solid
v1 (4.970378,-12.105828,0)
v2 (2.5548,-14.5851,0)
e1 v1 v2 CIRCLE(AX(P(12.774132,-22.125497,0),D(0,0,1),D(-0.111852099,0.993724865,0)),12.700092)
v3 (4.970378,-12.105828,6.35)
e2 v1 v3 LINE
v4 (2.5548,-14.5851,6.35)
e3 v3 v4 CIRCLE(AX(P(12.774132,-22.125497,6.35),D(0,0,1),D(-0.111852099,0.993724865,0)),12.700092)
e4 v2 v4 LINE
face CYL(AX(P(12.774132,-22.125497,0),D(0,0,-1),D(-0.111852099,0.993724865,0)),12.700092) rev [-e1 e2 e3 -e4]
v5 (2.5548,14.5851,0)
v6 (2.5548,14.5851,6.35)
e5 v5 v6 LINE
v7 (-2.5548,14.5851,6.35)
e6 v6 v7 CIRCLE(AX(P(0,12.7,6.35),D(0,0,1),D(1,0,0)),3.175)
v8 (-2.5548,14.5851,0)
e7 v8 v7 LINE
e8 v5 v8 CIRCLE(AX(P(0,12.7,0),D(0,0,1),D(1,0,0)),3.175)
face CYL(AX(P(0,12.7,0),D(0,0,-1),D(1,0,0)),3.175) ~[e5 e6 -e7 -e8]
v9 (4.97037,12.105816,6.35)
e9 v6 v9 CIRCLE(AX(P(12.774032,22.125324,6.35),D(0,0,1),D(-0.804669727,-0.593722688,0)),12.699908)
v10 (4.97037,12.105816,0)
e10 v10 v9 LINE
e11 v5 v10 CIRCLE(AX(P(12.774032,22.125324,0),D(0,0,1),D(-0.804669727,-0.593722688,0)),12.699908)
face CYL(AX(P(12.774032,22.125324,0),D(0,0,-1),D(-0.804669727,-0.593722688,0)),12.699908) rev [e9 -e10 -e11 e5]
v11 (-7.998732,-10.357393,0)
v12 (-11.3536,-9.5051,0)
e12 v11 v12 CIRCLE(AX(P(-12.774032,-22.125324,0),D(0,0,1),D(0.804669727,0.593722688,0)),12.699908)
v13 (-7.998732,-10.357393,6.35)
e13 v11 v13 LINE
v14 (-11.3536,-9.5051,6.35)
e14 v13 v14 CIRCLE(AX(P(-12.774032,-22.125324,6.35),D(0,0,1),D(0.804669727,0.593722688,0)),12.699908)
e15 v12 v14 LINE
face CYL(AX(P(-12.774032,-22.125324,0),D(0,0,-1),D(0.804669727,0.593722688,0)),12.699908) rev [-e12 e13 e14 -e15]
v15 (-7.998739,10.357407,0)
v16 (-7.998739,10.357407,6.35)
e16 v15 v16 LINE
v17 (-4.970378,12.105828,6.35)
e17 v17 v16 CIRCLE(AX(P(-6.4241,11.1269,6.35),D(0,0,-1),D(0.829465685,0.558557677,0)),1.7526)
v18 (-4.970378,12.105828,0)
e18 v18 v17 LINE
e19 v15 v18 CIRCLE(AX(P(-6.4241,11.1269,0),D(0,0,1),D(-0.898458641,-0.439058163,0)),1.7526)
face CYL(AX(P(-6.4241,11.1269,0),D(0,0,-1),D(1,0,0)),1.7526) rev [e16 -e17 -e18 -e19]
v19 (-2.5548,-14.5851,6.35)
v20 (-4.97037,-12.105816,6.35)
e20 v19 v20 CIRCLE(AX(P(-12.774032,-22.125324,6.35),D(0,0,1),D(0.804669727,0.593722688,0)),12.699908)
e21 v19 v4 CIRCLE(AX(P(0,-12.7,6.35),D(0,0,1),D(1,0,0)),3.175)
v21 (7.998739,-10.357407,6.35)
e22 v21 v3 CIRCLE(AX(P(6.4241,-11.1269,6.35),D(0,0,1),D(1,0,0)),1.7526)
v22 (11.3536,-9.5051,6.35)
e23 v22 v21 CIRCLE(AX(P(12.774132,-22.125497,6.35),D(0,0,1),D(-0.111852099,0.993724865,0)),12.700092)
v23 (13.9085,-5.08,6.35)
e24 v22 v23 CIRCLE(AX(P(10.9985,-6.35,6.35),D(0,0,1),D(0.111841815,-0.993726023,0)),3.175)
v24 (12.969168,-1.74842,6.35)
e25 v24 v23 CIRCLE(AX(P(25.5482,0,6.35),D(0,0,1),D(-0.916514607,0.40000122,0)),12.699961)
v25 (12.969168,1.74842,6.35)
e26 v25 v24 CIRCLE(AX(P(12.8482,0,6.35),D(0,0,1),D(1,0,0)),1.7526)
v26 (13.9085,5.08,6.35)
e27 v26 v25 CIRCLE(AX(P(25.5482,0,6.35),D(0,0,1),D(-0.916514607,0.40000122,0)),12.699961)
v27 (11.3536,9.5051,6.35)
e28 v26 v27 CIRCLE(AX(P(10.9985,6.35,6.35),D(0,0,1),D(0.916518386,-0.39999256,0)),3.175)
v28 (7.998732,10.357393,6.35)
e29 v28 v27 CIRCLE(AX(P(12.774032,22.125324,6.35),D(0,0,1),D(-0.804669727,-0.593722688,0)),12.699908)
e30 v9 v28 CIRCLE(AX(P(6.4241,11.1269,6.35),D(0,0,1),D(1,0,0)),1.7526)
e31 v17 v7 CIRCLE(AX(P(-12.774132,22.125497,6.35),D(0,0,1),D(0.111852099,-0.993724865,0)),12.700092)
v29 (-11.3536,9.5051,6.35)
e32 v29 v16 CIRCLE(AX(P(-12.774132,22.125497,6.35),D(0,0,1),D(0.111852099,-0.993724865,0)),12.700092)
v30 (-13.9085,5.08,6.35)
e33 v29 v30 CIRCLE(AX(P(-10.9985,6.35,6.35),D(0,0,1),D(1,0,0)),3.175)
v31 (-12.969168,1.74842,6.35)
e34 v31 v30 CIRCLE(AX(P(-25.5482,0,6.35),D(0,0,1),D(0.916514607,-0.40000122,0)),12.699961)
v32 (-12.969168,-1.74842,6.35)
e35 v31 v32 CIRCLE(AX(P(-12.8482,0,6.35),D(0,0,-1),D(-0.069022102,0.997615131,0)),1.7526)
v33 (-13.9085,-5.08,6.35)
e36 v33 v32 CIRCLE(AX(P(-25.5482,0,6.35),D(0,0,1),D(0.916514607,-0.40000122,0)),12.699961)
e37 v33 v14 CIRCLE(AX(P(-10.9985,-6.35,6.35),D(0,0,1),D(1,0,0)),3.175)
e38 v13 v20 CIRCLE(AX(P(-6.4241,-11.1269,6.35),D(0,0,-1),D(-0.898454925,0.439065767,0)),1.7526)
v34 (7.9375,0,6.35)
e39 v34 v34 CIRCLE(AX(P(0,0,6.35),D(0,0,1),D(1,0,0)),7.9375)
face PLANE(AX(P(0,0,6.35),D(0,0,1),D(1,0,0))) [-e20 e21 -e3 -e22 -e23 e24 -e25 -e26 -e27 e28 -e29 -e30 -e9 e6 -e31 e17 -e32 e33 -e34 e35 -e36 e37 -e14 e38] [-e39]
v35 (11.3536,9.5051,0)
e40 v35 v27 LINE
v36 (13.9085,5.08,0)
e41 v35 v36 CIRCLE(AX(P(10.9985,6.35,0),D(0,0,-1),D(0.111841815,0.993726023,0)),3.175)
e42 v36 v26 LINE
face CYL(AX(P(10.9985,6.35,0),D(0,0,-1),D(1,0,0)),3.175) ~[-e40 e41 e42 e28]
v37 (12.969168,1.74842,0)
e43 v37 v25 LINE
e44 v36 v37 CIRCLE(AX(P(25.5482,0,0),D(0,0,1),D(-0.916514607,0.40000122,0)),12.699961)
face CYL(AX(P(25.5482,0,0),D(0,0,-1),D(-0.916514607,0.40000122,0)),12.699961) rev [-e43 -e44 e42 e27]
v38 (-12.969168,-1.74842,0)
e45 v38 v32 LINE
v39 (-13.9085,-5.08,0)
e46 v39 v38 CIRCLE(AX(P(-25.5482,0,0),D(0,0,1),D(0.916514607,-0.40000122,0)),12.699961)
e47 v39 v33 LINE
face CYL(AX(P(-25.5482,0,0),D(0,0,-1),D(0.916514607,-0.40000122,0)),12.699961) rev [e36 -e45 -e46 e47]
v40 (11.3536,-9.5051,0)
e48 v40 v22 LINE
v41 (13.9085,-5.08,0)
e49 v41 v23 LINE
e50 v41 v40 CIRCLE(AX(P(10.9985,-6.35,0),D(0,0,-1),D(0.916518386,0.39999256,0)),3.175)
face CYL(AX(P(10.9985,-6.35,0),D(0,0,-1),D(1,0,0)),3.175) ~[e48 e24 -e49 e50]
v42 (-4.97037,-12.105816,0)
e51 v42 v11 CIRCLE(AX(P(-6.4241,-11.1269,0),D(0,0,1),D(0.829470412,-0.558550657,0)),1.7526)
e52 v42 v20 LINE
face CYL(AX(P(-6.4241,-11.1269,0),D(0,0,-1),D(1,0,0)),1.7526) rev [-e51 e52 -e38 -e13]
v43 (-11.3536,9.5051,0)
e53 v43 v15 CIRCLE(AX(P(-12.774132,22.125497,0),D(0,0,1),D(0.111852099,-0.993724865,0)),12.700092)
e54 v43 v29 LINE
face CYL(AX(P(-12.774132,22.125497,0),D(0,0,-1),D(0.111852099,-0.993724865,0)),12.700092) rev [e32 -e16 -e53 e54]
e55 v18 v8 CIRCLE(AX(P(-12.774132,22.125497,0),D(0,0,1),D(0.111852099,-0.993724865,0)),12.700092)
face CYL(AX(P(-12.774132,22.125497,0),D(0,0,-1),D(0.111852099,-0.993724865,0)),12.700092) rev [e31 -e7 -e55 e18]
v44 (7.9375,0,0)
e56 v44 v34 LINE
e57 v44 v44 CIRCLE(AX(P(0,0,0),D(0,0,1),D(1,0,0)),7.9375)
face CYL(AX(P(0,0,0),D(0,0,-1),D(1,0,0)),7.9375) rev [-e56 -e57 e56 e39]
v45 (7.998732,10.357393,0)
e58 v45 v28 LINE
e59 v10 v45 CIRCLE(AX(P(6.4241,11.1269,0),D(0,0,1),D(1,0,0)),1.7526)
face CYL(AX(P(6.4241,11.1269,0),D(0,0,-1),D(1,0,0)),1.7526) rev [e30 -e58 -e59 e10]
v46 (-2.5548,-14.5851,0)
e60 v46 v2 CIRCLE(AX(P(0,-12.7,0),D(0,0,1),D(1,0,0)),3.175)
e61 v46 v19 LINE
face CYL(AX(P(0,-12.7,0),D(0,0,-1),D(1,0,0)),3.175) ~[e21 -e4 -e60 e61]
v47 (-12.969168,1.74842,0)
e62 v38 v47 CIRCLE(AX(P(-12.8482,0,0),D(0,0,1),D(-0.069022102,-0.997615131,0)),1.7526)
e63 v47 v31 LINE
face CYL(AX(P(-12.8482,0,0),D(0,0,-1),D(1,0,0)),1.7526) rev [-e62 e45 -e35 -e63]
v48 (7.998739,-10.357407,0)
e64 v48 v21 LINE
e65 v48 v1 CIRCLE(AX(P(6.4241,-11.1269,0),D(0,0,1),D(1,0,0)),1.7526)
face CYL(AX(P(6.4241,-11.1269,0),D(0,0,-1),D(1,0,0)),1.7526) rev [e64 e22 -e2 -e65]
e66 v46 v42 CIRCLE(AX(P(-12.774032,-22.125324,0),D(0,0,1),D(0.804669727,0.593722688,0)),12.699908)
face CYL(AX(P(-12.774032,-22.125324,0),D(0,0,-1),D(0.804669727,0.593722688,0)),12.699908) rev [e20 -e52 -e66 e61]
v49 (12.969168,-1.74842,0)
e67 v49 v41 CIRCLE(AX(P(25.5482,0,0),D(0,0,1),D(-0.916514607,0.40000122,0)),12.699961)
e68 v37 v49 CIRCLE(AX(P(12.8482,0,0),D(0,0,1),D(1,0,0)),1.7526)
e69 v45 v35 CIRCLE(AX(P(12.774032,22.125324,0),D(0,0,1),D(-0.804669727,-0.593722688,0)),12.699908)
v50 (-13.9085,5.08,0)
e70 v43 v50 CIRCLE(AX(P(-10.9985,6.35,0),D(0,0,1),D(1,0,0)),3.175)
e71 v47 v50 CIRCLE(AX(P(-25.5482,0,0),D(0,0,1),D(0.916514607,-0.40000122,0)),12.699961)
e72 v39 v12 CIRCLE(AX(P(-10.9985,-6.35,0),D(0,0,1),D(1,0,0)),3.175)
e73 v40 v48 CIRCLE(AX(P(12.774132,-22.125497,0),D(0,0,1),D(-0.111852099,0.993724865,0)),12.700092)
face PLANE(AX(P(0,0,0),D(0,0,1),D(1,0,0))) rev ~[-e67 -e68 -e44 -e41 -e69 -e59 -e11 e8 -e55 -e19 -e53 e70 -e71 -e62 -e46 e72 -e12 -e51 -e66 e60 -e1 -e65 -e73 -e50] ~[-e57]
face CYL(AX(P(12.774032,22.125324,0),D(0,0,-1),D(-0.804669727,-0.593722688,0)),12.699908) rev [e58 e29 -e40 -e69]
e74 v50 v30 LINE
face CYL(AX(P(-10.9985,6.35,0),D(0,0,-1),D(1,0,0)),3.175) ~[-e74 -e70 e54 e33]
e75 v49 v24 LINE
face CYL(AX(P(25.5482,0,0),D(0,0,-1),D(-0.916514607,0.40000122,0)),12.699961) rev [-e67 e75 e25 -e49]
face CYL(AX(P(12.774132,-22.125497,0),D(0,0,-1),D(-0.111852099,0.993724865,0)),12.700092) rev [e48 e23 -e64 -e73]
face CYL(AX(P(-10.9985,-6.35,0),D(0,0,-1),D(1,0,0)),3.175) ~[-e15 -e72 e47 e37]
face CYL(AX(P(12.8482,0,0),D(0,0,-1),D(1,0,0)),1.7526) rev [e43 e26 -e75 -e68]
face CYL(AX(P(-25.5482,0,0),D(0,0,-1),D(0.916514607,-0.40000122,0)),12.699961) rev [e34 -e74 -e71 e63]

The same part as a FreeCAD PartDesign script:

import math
import FreeCAD as App
import Part
import Sketcher
from FreeCAD import Vector
Q = App.Units.Quantity

doc = App.newDocument("Part")
params = doc.addObject("Spreadsheet::Sheet", "Params")
for row, (alias, value) in enumerate([
    ("sketch1_radius", "0.5 in"),
    ("sketch1_diameter", "0.625 in"),
    ("sketch1_radius2", "0.125 in"),
    ("sketch1_radius3", "0.069 in"),
    ("pad1_length", "0.25 in"),
], start=1):
    params.set(f"A{row}", alias)
    params.set(f"B{row}", "=" + value)
    params.setAlias(f"B{row}", alias)

body = doc.addObject("PartDesign::Body", "Body")

# Sketch on XY plane
sketch1 = body.newObject("Sketcher::SketchObject", "Sketch")
sketch1.AttachmentSupport = (doc.getObject("XY_Plane"), [""])
sketch1.MapMode = "FlatFace"
sketch1.addGeometry([
    Part.ArcOfCircle(Part.Circle(Vector(0, 12.7, 0), Vector(0, 0, 1), 3.2), math.radians(36), math.radians(144)),  # 0
    Part.ArcOfCircle(Part.Circle(Vector(-12.8, 22.1, 0), Vector(0, 0, 1), 12.7), math.radians(-52.09), math.radians(-36.42)),  # 1
    Part.ArcOfCircle(Part.Circle(Vector(-6.4, 11.1, 0), Vector(0, 0, 1), 1.8), math.radians(-154), math.radians(34)),  # 2
    Part.ArcOfCircle(Part.Circle(Vector(-12.8, 22.1, 0), Vector(0, 0, 1), 12.7), math.radians(-83.58), math.radians(-67.91)),  # 3
    Part.ArcOfCircle(Part.Circle(Vector(-11, 6.3, 0), Vector(0, 0, 1), 3.2), math.radians(96), math.radians(204)),  # 4
    Part.ArcOfCircle(Part.Circle(Vector(-25.5, 0, 0), Vector(0, 0, 1), 12.7), math.radians(7.91), math.radians(23.58)),  # 5
    Part.ArcOfCircle(Part.Circle(Vector(-12.8, 0, 0), Vector(0, 0, 1), 1.8), math.radians(-94), math.radians(94)),  # 6
    Part.ArcOfCircle(Part.Circle(Vector(-25.5, 0, 0), Vector(0, 0, 1), 12.7), math.radians(-23.58), math.radians(-7.91)),  # 7
    Part.ArcOfCircle(Part.Circle(Vector(-11, -6.3, 0), Vector(0, 0, 1), 3.2), math.radians(156), math.radians(264)),  # 8
    Part.ArcOfCircle(Part.Circle(Vector(-12.8, -22.1, 0), Vector(0, 0, 1), 12.7), math.radians(67.91), math.radians(83.58)),  # 9
    Part.ArcOfCircle(Part.Circle(Vector(-6.4, -11.1, 0), Vector(0, 0, 1), 1.8), math.radians(-34), math.radians(154)),  # 10
    Part.ArcOfCircle(Part.Circle(Vector(-12.8, -22.1, 0), Vector(0, 0, 1), 12.7), math.radians(36.42), math.radians(52.09)),  # 11
    Part.ArcOfCircle(Part.Circle(Vector(0, -12.7, 0), Vector(0, 0, 1), 3.2), math.radians(-144), math.radians(-36)),  # 12
    Part.ArcOfCircle(Part.Circle(Vector(12.8, -22.1, 0), Vector(0, 0, 1), 12.7), math.radians(127.91), math.radians(143.58)),  # 13
    Part.ArcOfCircle(Part.Circle(Vector(6.4, -11.1, 0), Vector(0, 0, 1), 1.8), math.radians(26), math.radians(214)),  # 14
    Part.ArcOfCircle(Part.Circle(Vector(12.8, -22.1, 0), Vector(0, 0, 1), 12.7), math.radians(96.42), math.radians(112.09)),  # 15
    Part.ArcOfCircle(Part.Circle(Vector(11, -6.3, 0), Vector(0, 0, 1), 3.2), math.radians(-84), math.radians(24)),  # 16
    Part.ArcOfCircle(Part.Circle(Vector(25.5, 0, 0), Vector(0, 0, 1), 12.7), math.radians(-172.09), math.radians(-156.42)),  # 17
    Part.ArcOfCircle(Part.Circle(Vector(12.8, 0, 0), Vector(0, 0, 1), 1.8), math.radians(86), math.radians(274)),  # 18
    Part.ArcOfCircle(Part.Circle(Vector(25.5, 0, 0), Vector(0, 0, 1), 12.7), math.radians(156.42), math.radians(172.09)),  # 19
    Part.ArcOfCircle(Part.Circle(Vector(11, 6.3, 0), Vector(0, 0, 1), 3.2), math.radians(-24), math.radians(84)),  # 20
    Part.ArcOfCircle(Part.Circle(Vector(12.8, 22.1, 0), Vector(0, 0, 1), 12.7), math.radians(-112.09), math.radians(-96.42)),  # 21
    Part.ArcOfCircle(Part.Circle(Vector(6.4, 11.1, 0), Vector(0, 0, 1), 1.8), math.radians(146), math.radians(334)),  # 22
    Part.ArcOfCircle(Part.Circle(Vector(12.8, 22.1, 0), Vector(0, 0, 1), 12.7), math.radians(-143.58), math.radians(-127.91)),  # 23
    Part.Circle(Vector(0, 0, 0), Vector(0, 0, 1), 7.9),  # 24
], False)
sketch1.addConstraint([
    Sketcher.Constraint("Tangent", 0, 2, 1, 2),
    Sketcher.Constraint("Coincident", 1, 1, 2, 2),
    Sketcher.Constraint("Coincident", 2, 1, 3, 2),
    Sketcher.Constraint("Tangent", 3, 1, 4, 1),
    Sketcher.Constraint("Tangent", 4, 2, 5, 2),
    Sketcher.Constraint("Coincident", 5, 1, 6, 2),
    Sketcher.Constraint("Coincident", 6, 1, 7, 2),
    Sketcher.Constraint("Tangent", 7, 1, 8, 1),
    Sketcher.Constraint("Tangent", 8, 2, 9, 2),
    Sketcher.Constraint("Coincident", 9, 1, 10, 2),
    Sketcher.Constraint("Coincident", 10, 1, 11, 2),
    Sketcher.Constraint("Tangent", 11, 1, 12, 1),
    Sketcher.Constraint("Tangent", 12, 2, 13, 2),
    Sketcher.Constraint("Coincident", 13, 1, 14, 2),
    Sketcher.Constraint("Coincident", 14, 1, 15, 2),
    Sketcher.Constraint("Tangent", 15, 1, 16, 1),
    Sketcher.Constraint("Tangent", 16, 2, 17, 2),
    Sketcher.Constraint("Coincident", 17, 1, 18, 2),
    Sketcher.Constraint("Coincident", 18, 1, 19, 2),
    Sketcher.Constraint("Tangent", 19, 1, 20, 1),
    Sketcher.Constraint("Tangent", 20, 2, 21, 2),
    Sketcher.Constraint("Coincident", 21, 1, 22, 2),
    Sketcher.Constraint("Coincident", 22, 1, 23, 2),
    Sketcher.Constraint("Tangent", 23, 1, 0, 1),
    Sketcher.Constraint("Coincident", 24, 3, -1, 1),
    Sketcher.Constraint("Coincident", 3, 3, 1, 3),
    Sketcher.Constraint("Coincident", 7, 3, 5, 3),
    Sketcher.Constraint("Coincident", 11, 3, 9, 3),
    Sketcher.Constraint("Coincident", 15, 3, 13, 3),
    Sketcher.Constraint("Coincident", 19, 3, 17, 3),
    Sketcher.Constraint("Coincident", 23, 3, 21, 3),
    Sketcher.Constraint("Equal", 1, 3),
    Sketcher.Constraint("Equal", 0, 4),
    Sketcher.Constraint("Equal", 3, 5),
    Sketcher.Constraint("Equal", 2, 6),
    Sketcher.Constraint("Equal", 5, 7),
    Sketcher.Constraint("Equal", 4, 8),
    Sketcher.Constraint("Equal", 7, 9),
    Sketcher.Constraint("Equal", 6, 10),
    Sketcher.Constraint("Equal", 9, 11),
    Sketcher.Constraint("Equal", 8, 12),
    Sketcher.Constraint("Equal", 11, 13),
    Sketcher.Constraint("Equal", 10, 14),
    Sketcher.Constraint("Equal", 13, 15),
    Sketcher.Constraint("Equal", 12, 16),
    Sketcher.Constraint("Equal", 15, 17),
    Sketcher.Constraint("Equal", 14, 18),
    Sketcher.Constraint("Equal", 17, 19),
    Sketcher.Constraint("Equal", 16, 20),
    Sketcher.Constraint("Equal", 19, 21),
    Sketcher.Constraint("Equal", 18, 22),
    Sketcher.Constraint("Equal", 21, 23),
    Sketcher.Constraint("Symmetric", 0, 3, 12, 3, -1, 1),
    Sketcher.Constraint("Symmetric", 2, 3, 14, 3, -1, 1),
    Sketcher.Constraint("Symmetric", 4, 3, 16, 3, -1, 1),
    Sketcher.Constraint("Symmetric", 6, 3, 18, 3, -1, 1),
    Sketcher.Constraint("Symmetric", 8, 3, 20, 3, -1, 1),
    Sketcher.Constraint("Symmetric", 10, 3, 22, 3, -1, 1),
    Sketcher.Constraint("Symmetric", 9, 3, 13, 3, -2),
    Sketcher.Constraint("Symmetric", 10, 3, 14, 3, -2),
    Sketcher.Constraint("Symmetric", 6, 1, 17, 1, -2),
    Sketcher.Constraint("Radius", 1, Q("0.5 in")),
    Sketcher.Constraint("Diameter", 24, Q("0.625 in")),
    Sketcher.Constraint("Radius", 0, Q("0.125 in")),
    Sketcher.Constraint("Radius", 2, Q("0.069 in")),
    Sketcher.Constraint("DistanceY", -1, 1, 0, 3, Q("0.5 in")),
    Sketcher.Constraint("DistanceX", 5, 3, 6, 3, Q("0.5 in")),
    Sketcher.Constraint("DistanceY", 8, 3, 4, 3, Q("0.5 in")),
    Sketcher.Constraint("DistanceX", 1, 3, 2, 3, Q("0.25 in")),
    Sketcher.Constraint("DistanceX", 4, 3, -1, 1, Q("0.433 in")),
    Sketcher.Constraint("DistanceY", 2, 3, 1, 3, Q("0.433 in")),
])
sketch1.setExpression("Constraints[61]", "Params.sketch1_radius")
sketch1.setExpression("Constraints[62]", "Params.sketch1_diameter")
sketch1.setExpression("Constraints[63]", "Params.sketch1_radius2")
sketch1.setExpression("Constraints[64]", "Params.sketch1_radius3")
pad1 = body.newObject("PartDesign::Pad", "Pad")
pad1.Profile = sketch1
pad1.setExpression("Length", "Params.pad1_length")

doc.recompute()
